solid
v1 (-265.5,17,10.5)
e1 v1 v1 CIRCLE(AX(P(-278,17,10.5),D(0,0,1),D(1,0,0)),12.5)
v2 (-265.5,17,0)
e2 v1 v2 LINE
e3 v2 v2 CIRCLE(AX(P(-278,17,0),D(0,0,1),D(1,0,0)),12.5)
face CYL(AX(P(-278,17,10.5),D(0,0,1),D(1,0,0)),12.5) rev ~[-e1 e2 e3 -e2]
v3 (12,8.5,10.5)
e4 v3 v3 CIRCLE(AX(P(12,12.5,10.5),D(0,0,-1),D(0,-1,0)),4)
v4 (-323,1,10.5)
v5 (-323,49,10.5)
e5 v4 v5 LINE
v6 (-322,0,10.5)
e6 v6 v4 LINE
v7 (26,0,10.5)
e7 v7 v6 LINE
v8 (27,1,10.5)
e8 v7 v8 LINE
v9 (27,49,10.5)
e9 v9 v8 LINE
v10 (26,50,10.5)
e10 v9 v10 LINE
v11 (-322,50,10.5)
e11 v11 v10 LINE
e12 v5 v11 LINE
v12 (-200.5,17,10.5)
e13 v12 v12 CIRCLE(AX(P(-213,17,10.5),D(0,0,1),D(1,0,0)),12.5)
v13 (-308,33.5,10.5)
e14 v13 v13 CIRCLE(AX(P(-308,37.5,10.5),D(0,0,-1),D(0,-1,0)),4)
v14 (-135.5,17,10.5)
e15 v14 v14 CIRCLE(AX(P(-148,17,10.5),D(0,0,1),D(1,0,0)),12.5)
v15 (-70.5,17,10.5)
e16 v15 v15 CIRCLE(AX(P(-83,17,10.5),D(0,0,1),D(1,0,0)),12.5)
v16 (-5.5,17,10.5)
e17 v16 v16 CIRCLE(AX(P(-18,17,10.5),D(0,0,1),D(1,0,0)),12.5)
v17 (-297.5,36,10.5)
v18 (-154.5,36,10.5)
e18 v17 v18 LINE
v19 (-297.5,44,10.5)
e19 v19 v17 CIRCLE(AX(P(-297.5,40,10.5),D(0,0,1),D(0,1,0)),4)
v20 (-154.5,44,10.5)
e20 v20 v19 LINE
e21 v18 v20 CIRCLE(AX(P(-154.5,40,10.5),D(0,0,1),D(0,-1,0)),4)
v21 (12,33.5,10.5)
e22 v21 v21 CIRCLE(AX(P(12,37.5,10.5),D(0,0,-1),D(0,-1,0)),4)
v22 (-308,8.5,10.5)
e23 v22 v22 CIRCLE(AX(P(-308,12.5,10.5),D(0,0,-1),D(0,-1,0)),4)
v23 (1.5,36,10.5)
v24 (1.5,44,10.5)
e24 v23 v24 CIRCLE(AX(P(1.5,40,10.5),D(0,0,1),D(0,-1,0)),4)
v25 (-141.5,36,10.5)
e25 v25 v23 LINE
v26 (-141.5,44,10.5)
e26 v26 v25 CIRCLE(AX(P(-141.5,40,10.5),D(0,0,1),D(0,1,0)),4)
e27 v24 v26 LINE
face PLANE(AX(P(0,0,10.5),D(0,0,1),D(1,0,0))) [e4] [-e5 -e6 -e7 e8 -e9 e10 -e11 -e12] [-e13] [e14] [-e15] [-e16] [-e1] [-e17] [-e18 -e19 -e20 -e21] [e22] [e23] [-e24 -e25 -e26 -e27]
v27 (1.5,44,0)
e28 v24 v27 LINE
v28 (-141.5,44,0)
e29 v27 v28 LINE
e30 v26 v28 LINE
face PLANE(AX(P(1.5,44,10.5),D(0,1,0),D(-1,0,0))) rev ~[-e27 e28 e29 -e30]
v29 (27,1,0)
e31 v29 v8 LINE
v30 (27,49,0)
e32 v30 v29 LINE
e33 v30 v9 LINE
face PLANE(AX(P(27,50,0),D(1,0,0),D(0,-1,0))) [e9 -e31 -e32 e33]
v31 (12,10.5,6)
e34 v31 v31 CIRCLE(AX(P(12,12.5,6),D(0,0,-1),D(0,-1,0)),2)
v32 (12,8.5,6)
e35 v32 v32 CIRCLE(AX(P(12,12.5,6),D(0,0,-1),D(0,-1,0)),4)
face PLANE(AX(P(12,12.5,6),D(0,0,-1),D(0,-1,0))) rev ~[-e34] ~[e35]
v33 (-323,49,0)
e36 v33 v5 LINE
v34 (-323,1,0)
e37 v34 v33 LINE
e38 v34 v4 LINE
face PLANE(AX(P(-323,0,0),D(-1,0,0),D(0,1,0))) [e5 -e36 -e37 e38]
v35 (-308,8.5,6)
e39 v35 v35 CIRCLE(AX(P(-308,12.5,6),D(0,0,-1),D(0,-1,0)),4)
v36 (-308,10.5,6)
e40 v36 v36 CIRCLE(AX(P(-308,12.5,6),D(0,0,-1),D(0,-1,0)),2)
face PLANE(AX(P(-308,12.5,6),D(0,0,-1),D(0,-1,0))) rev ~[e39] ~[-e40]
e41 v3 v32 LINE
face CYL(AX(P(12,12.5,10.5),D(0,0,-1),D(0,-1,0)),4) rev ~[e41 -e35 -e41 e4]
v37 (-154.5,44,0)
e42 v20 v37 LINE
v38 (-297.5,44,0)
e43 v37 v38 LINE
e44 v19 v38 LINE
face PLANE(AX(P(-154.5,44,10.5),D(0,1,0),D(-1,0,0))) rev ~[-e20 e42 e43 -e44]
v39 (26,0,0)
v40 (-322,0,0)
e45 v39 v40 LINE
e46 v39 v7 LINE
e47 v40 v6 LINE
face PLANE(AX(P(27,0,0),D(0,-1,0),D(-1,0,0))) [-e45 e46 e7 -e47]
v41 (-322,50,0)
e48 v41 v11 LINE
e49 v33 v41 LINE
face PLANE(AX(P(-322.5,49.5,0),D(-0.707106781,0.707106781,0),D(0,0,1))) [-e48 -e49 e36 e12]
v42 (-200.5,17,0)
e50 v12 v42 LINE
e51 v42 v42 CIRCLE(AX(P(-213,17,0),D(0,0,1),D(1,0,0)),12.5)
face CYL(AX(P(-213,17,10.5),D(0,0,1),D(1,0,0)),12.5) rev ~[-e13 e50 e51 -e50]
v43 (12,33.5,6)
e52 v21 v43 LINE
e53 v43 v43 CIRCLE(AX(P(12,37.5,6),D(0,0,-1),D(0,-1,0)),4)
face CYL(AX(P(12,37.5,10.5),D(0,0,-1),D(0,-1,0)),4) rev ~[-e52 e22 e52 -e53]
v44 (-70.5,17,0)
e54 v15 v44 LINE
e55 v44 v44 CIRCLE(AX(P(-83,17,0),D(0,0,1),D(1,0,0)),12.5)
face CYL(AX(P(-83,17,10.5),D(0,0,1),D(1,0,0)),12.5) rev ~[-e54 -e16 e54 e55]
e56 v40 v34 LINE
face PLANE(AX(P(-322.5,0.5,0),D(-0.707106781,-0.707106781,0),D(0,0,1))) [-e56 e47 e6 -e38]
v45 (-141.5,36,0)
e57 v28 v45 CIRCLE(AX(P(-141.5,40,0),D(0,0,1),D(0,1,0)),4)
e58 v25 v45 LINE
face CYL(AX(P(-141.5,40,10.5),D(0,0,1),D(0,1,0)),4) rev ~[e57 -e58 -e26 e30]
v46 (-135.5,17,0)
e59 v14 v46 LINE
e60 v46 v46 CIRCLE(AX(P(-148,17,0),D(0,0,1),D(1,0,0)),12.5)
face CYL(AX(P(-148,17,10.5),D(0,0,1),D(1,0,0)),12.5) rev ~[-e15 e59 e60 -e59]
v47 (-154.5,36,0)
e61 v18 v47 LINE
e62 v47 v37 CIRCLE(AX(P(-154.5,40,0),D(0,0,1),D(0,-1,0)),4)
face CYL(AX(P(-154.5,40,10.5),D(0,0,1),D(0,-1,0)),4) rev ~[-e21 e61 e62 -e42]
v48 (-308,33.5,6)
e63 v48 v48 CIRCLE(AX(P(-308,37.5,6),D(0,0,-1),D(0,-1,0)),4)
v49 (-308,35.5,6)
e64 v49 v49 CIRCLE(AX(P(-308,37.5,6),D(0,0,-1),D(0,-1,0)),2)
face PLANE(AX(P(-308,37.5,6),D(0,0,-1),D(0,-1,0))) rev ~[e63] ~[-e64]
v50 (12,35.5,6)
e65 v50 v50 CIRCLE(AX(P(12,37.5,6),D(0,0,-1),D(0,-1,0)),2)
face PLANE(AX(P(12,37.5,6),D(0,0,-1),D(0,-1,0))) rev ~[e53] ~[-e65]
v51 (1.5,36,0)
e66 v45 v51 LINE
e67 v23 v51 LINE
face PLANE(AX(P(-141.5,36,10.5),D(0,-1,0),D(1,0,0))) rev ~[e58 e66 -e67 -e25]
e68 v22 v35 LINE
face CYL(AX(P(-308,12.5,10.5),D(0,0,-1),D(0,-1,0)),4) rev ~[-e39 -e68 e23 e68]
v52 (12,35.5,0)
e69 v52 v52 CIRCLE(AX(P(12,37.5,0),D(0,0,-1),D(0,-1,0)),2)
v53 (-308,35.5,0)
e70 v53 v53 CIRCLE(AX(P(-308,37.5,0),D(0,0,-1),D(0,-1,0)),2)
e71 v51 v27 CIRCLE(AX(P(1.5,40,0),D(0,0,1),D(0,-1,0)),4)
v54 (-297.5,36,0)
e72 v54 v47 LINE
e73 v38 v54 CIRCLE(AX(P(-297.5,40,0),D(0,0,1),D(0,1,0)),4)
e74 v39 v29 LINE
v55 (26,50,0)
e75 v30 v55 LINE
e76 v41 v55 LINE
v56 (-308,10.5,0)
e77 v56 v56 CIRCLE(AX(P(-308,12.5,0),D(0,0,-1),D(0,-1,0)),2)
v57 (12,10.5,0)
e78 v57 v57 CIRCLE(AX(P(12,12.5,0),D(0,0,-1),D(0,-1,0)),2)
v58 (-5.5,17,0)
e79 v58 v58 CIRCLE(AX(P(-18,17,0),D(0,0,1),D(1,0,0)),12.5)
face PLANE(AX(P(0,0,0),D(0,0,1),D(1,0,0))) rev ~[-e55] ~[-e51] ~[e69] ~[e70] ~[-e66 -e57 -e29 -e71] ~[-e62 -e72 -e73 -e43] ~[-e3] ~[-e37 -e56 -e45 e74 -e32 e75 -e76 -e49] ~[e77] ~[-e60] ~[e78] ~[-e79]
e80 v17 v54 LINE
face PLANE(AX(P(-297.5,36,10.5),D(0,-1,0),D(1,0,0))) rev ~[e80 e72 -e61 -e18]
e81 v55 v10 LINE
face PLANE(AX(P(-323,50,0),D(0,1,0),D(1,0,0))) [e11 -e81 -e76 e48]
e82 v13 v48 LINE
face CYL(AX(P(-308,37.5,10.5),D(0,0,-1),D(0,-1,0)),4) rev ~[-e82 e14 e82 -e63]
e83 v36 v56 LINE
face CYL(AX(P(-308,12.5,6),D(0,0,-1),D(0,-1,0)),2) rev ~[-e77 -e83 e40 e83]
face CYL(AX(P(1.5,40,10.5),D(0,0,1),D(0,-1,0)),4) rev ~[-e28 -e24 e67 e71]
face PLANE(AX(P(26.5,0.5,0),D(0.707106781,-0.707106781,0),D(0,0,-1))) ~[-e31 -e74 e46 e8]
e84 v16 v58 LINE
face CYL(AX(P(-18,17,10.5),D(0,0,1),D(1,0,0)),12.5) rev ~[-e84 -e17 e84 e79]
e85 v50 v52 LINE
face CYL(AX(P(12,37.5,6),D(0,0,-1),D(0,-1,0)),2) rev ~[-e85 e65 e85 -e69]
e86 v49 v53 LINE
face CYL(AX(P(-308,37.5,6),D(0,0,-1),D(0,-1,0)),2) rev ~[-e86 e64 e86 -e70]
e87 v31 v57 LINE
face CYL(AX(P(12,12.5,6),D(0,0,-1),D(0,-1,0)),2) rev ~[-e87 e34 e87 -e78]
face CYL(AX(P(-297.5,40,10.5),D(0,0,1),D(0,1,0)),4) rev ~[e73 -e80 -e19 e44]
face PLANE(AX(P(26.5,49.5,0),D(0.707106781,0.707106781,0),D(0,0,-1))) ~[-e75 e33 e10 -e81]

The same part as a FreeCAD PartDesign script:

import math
import FreeCAD as App
import Part
import Sketcher


def edges_at(feature, points):
    """Names of the edges that pass closest to the given points."""
    edges = feature.Shape.Edges
    near = lambda p: min(range(len(edges)), key=lambda i: edges[i].distToShape(Part.Vertex(*p))[0])
    return sorted({f"Edge{near(p) + 1}" for p in points})


def add_polygon(sketch, points):
    """Adds a closed chain of lines whose ends are joined by coincident constraints."""
    first, n = sketch.GeometryCount, len(points)
    for a, b in zip(points, points[1:] + points[:1]):
        sketch.addGeometry(Part.LineSegment(App.Vector(*a, 0), App.Vector(*b, 0)), False)
    for i in range(n):
        sketch.addConstraint(Sketcher.Constraint("Coincident", first + i, 2, first + (i + 1) % n, 1))

doc = App.newDocument("Part")
body = doc.addObject("PartDesign::Body", "Body")

# Sketch on XY plane
sketch1 = body.newObject("Sketcher::SketchObject", "Sketch")
sketch1.AttachmentSupport = (doc.getObject("XY_Plane"), [""])
sketch1.MapMode = "FlatFace"
add_polygon(sketch1, [(-323, 0), (27, 0), (27, 50), (-323, 50)])  # lines 0-3
sketch1.addConstraint([
    Sketcher.Constraint("Horizontal", 0),
    Sketcher.Constraint("Vertical", 1),
    Sketcher.Constraint("Horizontal", 2),
    Sketcher.Constraint("Vertical", 3),
    Sketcher.Constraint("PointOnObject", 0, 2, -1),
    Sketcher.Constraint("DistanceX", 0, 1, 0, 2, 350.0),
    Sketcher.Constraint("DistanceY", 1, 1, 1, 2, 50.0),
    Sketcher.Constraint("DistanceX", -1, 1, 0, 2, 27.0),
])
pad1 = body.newObject("PartDesign::Pad", "Pad")
pad1.Profile = sketch1
pad1.Length = 10.5

# Sketch on XY plane
sketch2 = body.newObject("Sketcher::SketchObject", "Sketch001")
sketch2.AttachmentSupport = (doc.getObject("XY_Plane"), [""])
sketch2.MapMode = "FlatFace"
sketch2.AttachmentOffset = App.Placement(App.Vector(0, 0, 10.5), App.Rotation())
sketch2.addGeometry([
    Part.ArcOfCircle(Part.Circle(App.Vector(1.5, 40, 0), App.Vector(0, 0, 1), 4), math.radians(-90), math.radians(90)),  # 0
    Part.LineSegment(App.Vector(1.5, 44, 0), App.Vector(-141.5, 44, 0)),  # 1
    Part.ArcOfCircle(Part.Circle(App.Vector(-141.5, 40, 0), App.Vector(0, 0, 1), 4), math.radians(90), math.radians(270)),  # 2
    Part.LineSegment(App.Vector(-141.5, 36, 0), App.Vector(1.5, 36, 0)),  # 3
    Part.ArcOfCircle(Part.Circle(App.Vector(-154.5, 40, 0), App.Vector(0, 0, 1), 4), math.radians(-90), math.radians(90)),  # 4
    Part.LineSegment(App.Vector(-154.5, 44, 0), App.Vector(-297.5, 44, 0)),  # 5
    Part.ArcOfCircle(Part.Circle(App.Vector(-297.5, 40, 0), App.Vector(0, 0, 1), 4), math.radians(90), math.radians(270)),  # 6
    Part.LineSegment(App.Vector(-297.5, 36, 0), App.Vector(-154.5, 36, 0)),  # 7
], False)
sketch2.addConstraint([
    Sketcher.Constraint("Tangent", 0, 2, 1, 1),
    Sketcher.Constraint("Tangent", 1, 2, 2, 1),
    Sketcher.Constraint("Tangent", 2, 2, 3, 1),
    Sketcher.Constraint("Tangent", 3, 2, 0, 1),
    Sketcher.Constraint("Tangent", 4, 2, 5, 1),
    Sketcher.Constraint("Tangent", 5, 2, 6, 1),
    Sketcher.Constraint("Tangent", 6, 2, 7, 1),
    Sketcher.Constraint("Tangent", 7, 2, 4, 1),
    Sketcher.Constraint("Horizontal", 1),
    Sketcher.Constraint("Horizontal", 3),
    Sketcher.Constraint("Horizontal", 5),
    Sketcher.Constraint("Horizontal", 7),
    Sketcher.Constraint("Equal", 2, 4),
    Sketcher.Constraint("Horizontal", 2, 3, 4, 3),
    Sketcher.Constraint("Equal", 3, 5),
    Sketcher.Constraint("Radius", 0, 4.0),
    Sketcher.Constraint("DistanceX", 1, 2, 1, 1, 143.0),
    Sketcher.Constraint("DistanceY", -1, 1, 0, 3, 40.0),
    Sketcher.Constraint("DistanceX", 4, 3, 2, 3, 13.0),
    Sketcher.Constraint("DistanceX", -1, 1, 0, 3, 1.5),
])
pocket1 = body.newObject("PartDesign::Pocket", "Pocket")
pocket1.Profile = sketch2
pocket1.Type = "ThroughAll"

# Sketch on XY plane
sketch3 = body.newObject("Sketcher::SketchObject", "Sketch002")
sketch3.AttachmentSupport = (doc.getObject("XY_Plane"), [""])
sketch3.MapMode = "FlatFace"
sketch3.AttachmentOffset = App.Placement(App.Vector(0, 0, 10.5), App.Rotation())
sketch3.addGeometry([
    Part.Circle(App.Vector(-148, 17, 0), App.Vector(0, 0, 1), 12),  # 0
    Part.Circle(App.Vector(-213, 17, 0), App.Vector(0, 0, 1), 12),  # 1
    Part.Circle(App.Vector(-278, 17, 0), App.Vector(0, 0, 1), 12),  # 2
    Part.Circle(App.Vector(-83, 17, 0), App.Vector(0, 0, 1), 12),  # 3
    Part.Circle(App.Vector(-18, 17, 0), App.Vector(0, 0, 1), 12),  # 4
], False)
sketch3.addConstraint([
    Sketcher.Constraint("Equal", 0, 1),
    Sketcher.Constraint("Equal", 1, 2),
    Sketcher.Constraint("Equal", 2, 3),
    Sketcher.Constraint("Equal", 3, 4),
    Sketcher.Constraint("Horizontal", 0, 3, 1, 3),
    Sketcher.Constraint("Horizontal", 1, 3, 2, 3),
    Sketcher.Constraint("Horizontal", 2, 3, 3, 3),
    Sketcher.Constraint("Horizontal", 3, 3, 4, 3),
    Sketcher.Constraint("Diameter", 0, 25.0),
    Sketcher.Constraint("DistanceY", -1, 1, 0, 3, 17.0),
    Sketcher.Constraint("DistanceX", 1, 3, 0, 3, 65.0),
    Sketcher.Constraint("DistanceX", 2, 3, 1, 3, 65.0),
    Sketcher.Constraint("DistanceX", 0, 3, 3, 3, 65.0),
    Sketcher.Constraint("DistanceX", 3, 3, 4, 3, 65.0),
    Sketcher.Constraint("DistanceX", 0, 3, -1, 1, 148.0),
])
pocket2 = body.newObject("PartDesign::Pocket", "Pocket001")
pocket2.Profile = sketch3
pocket2.Type = "ThroughAll"

# Sketch on XY plane
sketch4 = body.newObject("Sketcher::SketchObject", "Sketch003")
sketch4.AttachmentSupport = (doc.getObject("XY_Plane"), [""])
sketch4.MapMode = "FlatFace"
sketch4.AttachmentOffset = App.Placement(App.Vector(0, 0, 10.5), App.Rotation())
sketch4.addGeometry([
    Part.Circle(App.Vector(-308, 12.5, 0), App.Vector(0, 0, 1), 2),
    Part.Circle(App.Vector(-308, 37.5, 0), App.Vector(0, 0, 1), 2),
    Part.Circle(App.Vector(12, 12.5, 0), App.Vector(0, 0, 1), 2),
    Part.Circle(App.Vector(12, 37.5, 0), App.Vector(0, 0, 1), 2),
], False)
sketch4.addConstraint([
    Sketcher.Constraint("Equal", 0, 1),
    Sketcher.Constraint("Equal", 1, 2),
    Sketcher.Constraint("Equal", 2, 3),
    Sketcher.Constraint("Horizontal", 0, 3, 2, 3),
    Sketcher.Constraint("Horizontal", 1, 3, 3, 3),
    Sketcher.Constraint("Vertical", 0, 3, 1, 3),
    Sketcher.Constraint("Vertical", 2, 3, 3, 3),
    Sketcher.Constraint("Diameter", 0, 4.0),
    Sketcher.Constraint("DistanceX", 0, 3, -1, 1, 308.0),
    Sketcher.Constraint("DistanceX", -1, 1, 2, 3, 12.0),
    Sketcher.Constraint("DistanceY", 0, 3, 1, 3, 25.0),
    Sketcher.Constraint("DistanceY", -1, 1, 0, 3, 12.5),
])
doc.recompute()
hole = body.newObject("PartDesign::Hole", "Hole")
hole.Profile = sketch4
hole.ThreadType = "None"
hole.Diameter = 4
hole.DepthType = "ThroughAll"
hole.HoleCutType = "Counterbore"
hole.HoleCutDiameter = 8
hole.HoleCutDepth = 4.5
doc.recompute()

chamfer = body.newObject("PartDesign::Chamfer", "Chamfer")
chamfer.Base = (hole, edges_at(hole, [
    (27, 0, 5.25),
    (27, 50, 5.25),
    (-323, 50, 5.25),
    (-323, 0, 5.25),
]))
chamfer.Size = 1

doc.recompute()
